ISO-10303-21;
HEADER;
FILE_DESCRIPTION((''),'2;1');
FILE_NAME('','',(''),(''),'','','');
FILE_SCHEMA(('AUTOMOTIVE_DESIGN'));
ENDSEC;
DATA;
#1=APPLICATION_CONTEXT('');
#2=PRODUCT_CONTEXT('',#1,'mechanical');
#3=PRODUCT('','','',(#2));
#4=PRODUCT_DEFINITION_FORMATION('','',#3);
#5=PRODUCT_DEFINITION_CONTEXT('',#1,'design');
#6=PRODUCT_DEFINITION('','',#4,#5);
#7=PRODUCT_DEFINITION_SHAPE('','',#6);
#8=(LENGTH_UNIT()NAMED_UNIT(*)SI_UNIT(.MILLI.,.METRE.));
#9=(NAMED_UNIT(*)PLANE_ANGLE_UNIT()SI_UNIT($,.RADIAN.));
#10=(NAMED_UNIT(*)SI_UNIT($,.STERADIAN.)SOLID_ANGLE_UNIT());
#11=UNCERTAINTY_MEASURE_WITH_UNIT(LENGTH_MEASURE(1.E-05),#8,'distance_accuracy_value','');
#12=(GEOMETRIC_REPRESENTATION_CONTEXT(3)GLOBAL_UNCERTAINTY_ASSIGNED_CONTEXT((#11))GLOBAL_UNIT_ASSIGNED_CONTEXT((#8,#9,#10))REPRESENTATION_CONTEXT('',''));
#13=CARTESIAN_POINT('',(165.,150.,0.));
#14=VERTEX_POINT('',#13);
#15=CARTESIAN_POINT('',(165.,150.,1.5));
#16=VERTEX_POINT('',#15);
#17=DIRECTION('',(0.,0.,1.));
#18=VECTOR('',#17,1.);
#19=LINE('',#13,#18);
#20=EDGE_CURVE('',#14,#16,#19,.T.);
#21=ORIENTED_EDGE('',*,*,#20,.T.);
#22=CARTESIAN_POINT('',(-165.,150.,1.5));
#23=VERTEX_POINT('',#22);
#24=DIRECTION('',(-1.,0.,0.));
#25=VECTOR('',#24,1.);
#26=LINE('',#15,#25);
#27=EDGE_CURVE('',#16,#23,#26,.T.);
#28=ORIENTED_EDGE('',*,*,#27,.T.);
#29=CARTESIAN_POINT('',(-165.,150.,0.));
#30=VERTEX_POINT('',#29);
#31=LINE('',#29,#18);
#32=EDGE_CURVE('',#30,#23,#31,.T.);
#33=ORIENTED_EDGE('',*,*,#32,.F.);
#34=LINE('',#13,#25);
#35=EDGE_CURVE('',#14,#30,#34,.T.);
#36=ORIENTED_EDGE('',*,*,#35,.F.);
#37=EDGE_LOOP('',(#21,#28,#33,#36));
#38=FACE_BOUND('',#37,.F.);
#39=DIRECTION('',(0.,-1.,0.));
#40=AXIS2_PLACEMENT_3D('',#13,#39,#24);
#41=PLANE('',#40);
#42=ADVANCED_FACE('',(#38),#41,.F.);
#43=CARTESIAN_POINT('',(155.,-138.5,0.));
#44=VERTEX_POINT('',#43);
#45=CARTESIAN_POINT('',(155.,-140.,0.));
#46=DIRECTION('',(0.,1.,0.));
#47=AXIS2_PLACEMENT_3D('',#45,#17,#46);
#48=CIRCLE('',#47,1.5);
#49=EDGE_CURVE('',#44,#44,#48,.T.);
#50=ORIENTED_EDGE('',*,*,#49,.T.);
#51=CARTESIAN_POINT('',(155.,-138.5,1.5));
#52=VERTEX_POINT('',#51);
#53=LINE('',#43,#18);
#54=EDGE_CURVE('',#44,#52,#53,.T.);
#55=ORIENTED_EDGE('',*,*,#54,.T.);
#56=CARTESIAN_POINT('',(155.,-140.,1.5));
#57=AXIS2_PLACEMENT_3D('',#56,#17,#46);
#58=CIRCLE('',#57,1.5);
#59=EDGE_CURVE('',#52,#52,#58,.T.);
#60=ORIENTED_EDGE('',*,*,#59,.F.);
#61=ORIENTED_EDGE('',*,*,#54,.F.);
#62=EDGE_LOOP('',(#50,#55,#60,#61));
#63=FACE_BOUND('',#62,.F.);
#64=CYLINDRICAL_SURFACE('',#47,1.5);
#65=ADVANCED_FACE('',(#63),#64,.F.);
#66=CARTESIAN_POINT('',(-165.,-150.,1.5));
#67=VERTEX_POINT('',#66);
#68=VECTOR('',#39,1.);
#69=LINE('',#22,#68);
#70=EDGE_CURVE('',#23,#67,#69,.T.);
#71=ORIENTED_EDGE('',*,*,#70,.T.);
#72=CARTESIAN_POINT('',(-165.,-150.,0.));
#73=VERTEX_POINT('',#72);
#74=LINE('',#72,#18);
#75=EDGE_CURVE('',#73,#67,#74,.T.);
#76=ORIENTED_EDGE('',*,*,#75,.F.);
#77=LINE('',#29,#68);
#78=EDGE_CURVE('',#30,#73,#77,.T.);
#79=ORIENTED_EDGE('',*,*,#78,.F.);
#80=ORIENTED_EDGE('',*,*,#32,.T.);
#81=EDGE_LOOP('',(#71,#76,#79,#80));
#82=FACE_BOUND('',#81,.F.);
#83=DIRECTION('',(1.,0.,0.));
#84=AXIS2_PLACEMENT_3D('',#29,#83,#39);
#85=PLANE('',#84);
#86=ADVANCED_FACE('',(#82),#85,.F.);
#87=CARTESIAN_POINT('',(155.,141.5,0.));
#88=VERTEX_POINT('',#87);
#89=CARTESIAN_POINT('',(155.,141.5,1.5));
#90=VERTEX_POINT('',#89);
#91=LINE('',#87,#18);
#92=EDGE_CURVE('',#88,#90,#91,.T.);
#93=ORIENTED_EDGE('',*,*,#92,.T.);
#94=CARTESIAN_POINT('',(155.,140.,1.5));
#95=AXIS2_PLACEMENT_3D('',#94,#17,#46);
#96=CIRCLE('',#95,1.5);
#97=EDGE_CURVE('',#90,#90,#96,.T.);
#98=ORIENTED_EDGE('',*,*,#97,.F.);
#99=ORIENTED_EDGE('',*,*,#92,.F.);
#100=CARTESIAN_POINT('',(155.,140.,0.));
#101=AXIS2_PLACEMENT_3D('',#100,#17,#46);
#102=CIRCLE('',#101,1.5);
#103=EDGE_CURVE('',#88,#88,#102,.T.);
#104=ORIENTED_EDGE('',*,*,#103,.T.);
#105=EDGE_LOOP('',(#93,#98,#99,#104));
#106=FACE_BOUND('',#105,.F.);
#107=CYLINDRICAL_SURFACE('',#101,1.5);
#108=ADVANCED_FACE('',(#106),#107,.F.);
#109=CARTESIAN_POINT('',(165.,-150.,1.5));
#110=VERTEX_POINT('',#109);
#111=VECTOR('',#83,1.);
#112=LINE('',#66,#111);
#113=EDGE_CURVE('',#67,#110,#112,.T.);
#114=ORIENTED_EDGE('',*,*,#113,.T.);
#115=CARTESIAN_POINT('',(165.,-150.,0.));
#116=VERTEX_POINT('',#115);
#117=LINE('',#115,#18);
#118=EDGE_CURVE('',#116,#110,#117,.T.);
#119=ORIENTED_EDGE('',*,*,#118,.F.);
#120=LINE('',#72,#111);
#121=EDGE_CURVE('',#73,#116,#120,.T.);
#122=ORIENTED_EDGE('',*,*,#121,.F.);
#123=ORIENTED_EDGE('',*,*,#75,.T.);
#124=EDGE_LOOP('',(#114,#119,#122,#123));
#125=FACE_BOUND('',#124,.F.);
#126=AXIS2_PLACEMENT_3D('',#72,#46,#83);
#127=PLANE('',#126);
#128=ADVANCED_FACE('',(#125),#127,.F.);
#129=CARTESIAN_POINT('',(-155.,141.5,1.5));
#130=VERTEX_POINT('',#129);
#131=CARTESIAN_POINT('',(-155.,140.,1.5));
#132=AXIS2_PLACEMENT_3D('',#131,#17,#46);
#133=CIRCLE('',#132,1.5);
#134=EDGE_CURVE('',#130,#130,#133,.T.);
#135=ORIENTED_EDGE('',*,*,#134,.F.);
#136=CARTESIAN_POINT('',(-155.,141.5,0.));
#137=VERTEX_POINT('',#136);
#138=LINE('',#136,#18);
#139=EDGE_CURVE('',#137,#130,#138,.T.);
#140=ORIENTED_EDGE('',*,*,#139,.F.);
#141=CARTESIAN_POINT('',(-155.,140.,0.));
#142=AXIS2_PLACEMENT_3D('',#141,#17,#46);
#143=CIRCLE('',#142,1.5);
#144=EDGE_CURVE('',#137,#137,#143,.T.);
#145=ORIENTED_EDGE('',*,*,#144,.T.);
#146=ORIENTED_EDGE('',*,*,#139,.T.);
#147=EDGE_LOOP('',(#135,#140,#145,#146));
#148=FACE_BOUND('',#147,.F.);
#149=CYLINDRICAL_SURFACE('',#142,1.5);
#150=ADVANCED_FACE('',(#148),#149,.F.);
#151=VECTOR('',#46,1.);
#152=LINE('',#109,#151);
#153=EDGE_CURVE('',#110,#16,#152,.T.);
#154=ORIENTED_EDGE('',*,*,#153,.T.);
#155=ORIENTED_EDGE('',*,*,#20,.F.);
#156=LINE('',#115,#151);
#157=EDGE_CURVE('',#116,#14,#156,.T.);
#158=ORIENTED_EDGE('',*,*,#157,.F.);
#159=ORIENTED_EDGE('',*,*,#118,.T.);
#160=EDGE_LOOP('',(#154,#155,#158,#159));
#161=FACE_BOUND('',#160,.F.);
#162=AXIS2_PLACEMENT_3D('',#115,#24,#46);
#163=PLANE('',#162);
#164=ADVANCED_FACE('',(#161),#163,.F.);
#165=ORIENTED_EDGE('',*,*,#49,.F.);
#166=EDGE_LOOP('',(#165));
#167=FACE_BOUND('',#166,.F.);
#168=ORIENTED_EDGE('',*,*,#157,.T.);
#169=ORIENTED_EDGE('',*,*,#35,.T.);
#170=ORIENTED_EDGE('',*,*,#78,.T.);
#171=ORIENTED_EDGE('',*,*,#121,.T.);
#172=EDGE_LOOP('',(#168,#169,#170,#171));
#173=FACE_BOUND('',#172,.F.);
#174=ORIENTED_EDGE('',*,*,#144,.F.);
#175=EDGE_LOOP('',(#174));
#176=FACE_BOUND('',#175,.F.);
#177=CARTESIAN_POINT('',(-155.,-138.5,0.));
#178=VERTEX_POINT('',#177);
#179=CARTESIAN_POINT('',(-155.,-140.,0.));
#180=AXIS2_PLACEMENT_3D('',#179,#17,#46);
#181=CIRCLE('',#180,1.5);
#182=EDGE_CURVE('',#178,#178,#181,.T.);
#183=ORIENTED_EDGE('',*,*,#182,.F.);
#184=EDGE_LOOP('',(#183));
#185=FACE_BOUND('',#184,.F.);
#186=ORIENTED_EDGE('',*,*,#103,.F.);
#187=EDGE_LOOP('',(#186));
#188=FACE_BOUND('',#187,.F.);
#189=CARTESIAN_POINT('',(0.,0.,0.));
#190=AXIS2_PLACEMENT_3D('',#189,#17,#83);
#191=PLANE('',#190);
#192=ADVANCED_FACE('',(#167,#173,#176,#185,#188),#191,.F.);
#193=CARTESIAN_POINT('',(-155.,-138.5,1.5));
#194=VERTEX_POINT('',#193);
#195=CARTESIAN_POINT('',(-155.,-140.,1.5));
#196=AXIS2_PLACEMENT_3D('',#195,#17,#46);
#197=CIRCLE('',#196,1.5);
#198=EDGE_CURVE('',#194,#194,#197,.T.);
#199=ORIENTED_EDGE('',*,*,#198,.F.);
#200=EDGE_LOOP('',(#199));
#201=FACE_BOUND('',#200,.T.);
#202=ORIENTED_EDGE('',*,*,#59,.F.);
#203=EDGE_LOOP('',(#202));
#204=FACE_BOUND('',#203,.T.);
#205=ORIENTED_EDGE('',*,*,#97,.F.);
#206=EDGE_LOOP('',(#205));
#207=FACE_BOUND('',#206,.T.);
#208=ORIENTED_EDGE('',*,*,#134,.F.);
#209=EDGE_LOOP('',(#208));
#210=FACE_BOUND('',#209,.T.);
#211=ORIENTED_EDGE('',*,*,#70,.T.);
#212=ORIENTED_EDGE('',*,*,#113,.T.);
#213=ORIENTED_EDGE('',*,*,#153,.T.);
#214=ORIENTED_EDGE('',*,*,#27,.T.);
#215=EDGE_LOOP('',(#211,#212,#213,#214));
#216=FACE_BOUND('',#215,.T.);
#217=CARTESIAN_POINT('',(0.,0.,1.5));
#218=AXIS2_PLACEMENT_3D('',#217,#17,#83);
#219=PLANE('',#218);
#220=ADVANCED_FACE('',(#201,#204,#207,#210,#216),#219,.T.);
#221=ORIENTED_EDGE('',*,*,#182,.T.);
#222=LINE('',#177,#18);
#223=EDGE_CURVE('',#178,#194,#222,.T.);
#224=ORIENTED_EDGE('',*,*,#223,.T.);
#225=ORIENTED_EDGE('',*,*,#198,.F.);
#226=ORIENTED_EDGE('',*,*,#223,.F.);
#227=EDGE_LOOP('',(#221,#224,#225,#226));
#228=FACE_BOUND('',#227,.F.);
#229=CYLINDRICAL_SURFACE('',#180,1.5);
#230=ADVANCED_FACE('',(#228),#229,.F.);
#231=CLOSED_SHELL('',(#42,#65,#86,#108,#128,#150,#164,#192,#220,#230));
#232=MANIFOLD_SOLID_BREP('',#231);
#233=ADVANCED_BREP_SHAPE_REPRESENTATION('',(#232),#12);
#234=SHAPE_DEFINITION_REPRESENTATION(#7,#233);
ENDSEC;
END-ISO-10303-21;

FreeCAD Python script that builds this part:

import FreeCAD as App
import Part
import Sketcher
from FreeCAD import Vector

doc = App.newDocument("Part")
params = doc.addObject("Spreadsheet::Sheet", "Params")
for row, (alias, value) in enumerate([
    ("sketch1_width", "330 mm"),
    ("sketch1_height", "300 mm"),
    ("pad1_length", "1.5 mm"),
    ("sketch2_diameter", "3 mm"),
    ("hole_diameter", "3 mm"),
], start=1):
    params.set(f"A{row}", alias)
    params.set(f"B{row}", "=" + value)
    params.setAlias(f"B{row}", alias)

body = doc.addObject("PartDesign::Body", "Body")

# Sketch on XY plane
sketch1 = body.newObject("Sketcher::SketchObject", "Sketch")
sketch1.AttachmentSupport = (doc.getObject("XY_Plane"), [""])
sketch1.MapMode = "FlatFace"
sketch1.addGeometry(Part.LineSegment(Vector(-165, 150, 0), Vector(-165, -150, 0)), False)
sketch1.addGeometry(Part.LineSegment(Vector(-165, -150, 0), Vector(165, -150, 0)), False)
sketch1.addGeometry(Part.LineSegment(Vector(165, -150, 0), Vector(165, 150, 0)), False)
sketch1.addGeometry(Part.LineSegment(Vector(165, 150, 0), Vector(-165, 150, 0)), False)
sketch1.addConstraint(Sketcher.Constraint("Coincident", 0, 2, 1, 1))
sketch1.addConstraint(Sketcher.Constraint("Coincident", 1, 2, 2, 1))
sketch1.addConstraint(Sketcher.Constraint("Coincident", 2, 2, 3, 1))
sketch1.addConstraint(Sketcher.Constraint("Coincident", 3, 2, 0, 1))
sketch1.addConstraint(Sketcher.Constraint("Vertical", 0))
sketch1.addConstraint(Sketcher.Constraint("Horizontal", 1))
sketch1.addConstraint(Sketcher.Constraint("Vertical", 2))
sketch1.addConstraint(Sketcher.Constraint("Horizontal", 3))
sketch1.addConstraint(Sketcher.Constraint("Symmetric", 0, 2, 2, 2, -1, 1))
sketch1.addConstraint(Sketcher.Constraint("DistanceX", 1, 1, 1, 2, 330.0))
sketch1.addConstraint(Sketcher.Constraint("DistanceY", 0, 2, 0, 1, 300.0))
sketch1.setExpression("Constraints[9]", "Params.sketch1_width")
sketch1.setExpression("Constraints[10]", "Params.sketch1_height")
pad1 = body.newObject("PartDesign::Pad", "Pad")
pad1.Profile = sketch1
pad1.setExpression("Length", "Params.pad1_length")

# Sketch on XY plane
sketch2 = body.newObject("Sketcher::SketchObject", "Sketch001")
sketch2.AttachmentSupport = (doc.getObject("XY_Plane"), [""])
sketch2.MapMode = "FlatFace"
sketch2.addGeometry(Part.Circle(Vector(-155, 140, 0), Vector(0, 0, 1), 1.5), False)
sketch2.addGeometry(Part.Circle(Vector(-155, -140, 0), Vector(0, 0, 1), 1.5), False)
sketch2.addGeometry(Part.Circle(Vector(155, -140, 0), Vector(0, 0, 1), 1.5), False)
sketch2.addGeometry(Part.Circle(Vector(155, 140, 0), Vector(0, 0, 1), 1.5), False)
sketch2.addConstraint(Sketcher.Constraint("Equal", 0, 1))
sketch2.addConstraint(Sketcher.Constraint("Equal", 1, 2))
sketch2.addConstraint(Sketcher.Constraint("Equal", 2, 3))
sketch2.addConstraint(Sketcher.Constraint("Symmetric", 0, 3, 2, 3, -1, 1))
sketch2.addConstraint(Sketcher.Constraint("Symmetric", 1, 3, 3, 3, -1, 1))
sketch2.addConstraint(Sketcher.Constraint("Symmetric", 1, 3, 2, 3, -2))
sketch2.addConstraint(Sketcher.Constraint("Diameter", 0, 3.0))
sketch2.addConstraint(Sketcher.Constraint("DistanceX", 0, 3, -1, 1, 155.0))
sketch2.addConstraint(Sketcher.Constraint("DistanceY", -1, 1, 0, 3, 140.0))
sketch2.setExpression("Constraints[6]", "Params.sketch2_diameter")
doc.recompute()
hole = body.newObject("PartDesign::Hole", "Hole")
hole.Profile = sketch2
hole.ThreadType = "None"
hole.setExpression("Diameter", "Params.hole_diameter")
hole.DepthType = "ThroughAll"
hole.Reversed = True

doc.recompute()
